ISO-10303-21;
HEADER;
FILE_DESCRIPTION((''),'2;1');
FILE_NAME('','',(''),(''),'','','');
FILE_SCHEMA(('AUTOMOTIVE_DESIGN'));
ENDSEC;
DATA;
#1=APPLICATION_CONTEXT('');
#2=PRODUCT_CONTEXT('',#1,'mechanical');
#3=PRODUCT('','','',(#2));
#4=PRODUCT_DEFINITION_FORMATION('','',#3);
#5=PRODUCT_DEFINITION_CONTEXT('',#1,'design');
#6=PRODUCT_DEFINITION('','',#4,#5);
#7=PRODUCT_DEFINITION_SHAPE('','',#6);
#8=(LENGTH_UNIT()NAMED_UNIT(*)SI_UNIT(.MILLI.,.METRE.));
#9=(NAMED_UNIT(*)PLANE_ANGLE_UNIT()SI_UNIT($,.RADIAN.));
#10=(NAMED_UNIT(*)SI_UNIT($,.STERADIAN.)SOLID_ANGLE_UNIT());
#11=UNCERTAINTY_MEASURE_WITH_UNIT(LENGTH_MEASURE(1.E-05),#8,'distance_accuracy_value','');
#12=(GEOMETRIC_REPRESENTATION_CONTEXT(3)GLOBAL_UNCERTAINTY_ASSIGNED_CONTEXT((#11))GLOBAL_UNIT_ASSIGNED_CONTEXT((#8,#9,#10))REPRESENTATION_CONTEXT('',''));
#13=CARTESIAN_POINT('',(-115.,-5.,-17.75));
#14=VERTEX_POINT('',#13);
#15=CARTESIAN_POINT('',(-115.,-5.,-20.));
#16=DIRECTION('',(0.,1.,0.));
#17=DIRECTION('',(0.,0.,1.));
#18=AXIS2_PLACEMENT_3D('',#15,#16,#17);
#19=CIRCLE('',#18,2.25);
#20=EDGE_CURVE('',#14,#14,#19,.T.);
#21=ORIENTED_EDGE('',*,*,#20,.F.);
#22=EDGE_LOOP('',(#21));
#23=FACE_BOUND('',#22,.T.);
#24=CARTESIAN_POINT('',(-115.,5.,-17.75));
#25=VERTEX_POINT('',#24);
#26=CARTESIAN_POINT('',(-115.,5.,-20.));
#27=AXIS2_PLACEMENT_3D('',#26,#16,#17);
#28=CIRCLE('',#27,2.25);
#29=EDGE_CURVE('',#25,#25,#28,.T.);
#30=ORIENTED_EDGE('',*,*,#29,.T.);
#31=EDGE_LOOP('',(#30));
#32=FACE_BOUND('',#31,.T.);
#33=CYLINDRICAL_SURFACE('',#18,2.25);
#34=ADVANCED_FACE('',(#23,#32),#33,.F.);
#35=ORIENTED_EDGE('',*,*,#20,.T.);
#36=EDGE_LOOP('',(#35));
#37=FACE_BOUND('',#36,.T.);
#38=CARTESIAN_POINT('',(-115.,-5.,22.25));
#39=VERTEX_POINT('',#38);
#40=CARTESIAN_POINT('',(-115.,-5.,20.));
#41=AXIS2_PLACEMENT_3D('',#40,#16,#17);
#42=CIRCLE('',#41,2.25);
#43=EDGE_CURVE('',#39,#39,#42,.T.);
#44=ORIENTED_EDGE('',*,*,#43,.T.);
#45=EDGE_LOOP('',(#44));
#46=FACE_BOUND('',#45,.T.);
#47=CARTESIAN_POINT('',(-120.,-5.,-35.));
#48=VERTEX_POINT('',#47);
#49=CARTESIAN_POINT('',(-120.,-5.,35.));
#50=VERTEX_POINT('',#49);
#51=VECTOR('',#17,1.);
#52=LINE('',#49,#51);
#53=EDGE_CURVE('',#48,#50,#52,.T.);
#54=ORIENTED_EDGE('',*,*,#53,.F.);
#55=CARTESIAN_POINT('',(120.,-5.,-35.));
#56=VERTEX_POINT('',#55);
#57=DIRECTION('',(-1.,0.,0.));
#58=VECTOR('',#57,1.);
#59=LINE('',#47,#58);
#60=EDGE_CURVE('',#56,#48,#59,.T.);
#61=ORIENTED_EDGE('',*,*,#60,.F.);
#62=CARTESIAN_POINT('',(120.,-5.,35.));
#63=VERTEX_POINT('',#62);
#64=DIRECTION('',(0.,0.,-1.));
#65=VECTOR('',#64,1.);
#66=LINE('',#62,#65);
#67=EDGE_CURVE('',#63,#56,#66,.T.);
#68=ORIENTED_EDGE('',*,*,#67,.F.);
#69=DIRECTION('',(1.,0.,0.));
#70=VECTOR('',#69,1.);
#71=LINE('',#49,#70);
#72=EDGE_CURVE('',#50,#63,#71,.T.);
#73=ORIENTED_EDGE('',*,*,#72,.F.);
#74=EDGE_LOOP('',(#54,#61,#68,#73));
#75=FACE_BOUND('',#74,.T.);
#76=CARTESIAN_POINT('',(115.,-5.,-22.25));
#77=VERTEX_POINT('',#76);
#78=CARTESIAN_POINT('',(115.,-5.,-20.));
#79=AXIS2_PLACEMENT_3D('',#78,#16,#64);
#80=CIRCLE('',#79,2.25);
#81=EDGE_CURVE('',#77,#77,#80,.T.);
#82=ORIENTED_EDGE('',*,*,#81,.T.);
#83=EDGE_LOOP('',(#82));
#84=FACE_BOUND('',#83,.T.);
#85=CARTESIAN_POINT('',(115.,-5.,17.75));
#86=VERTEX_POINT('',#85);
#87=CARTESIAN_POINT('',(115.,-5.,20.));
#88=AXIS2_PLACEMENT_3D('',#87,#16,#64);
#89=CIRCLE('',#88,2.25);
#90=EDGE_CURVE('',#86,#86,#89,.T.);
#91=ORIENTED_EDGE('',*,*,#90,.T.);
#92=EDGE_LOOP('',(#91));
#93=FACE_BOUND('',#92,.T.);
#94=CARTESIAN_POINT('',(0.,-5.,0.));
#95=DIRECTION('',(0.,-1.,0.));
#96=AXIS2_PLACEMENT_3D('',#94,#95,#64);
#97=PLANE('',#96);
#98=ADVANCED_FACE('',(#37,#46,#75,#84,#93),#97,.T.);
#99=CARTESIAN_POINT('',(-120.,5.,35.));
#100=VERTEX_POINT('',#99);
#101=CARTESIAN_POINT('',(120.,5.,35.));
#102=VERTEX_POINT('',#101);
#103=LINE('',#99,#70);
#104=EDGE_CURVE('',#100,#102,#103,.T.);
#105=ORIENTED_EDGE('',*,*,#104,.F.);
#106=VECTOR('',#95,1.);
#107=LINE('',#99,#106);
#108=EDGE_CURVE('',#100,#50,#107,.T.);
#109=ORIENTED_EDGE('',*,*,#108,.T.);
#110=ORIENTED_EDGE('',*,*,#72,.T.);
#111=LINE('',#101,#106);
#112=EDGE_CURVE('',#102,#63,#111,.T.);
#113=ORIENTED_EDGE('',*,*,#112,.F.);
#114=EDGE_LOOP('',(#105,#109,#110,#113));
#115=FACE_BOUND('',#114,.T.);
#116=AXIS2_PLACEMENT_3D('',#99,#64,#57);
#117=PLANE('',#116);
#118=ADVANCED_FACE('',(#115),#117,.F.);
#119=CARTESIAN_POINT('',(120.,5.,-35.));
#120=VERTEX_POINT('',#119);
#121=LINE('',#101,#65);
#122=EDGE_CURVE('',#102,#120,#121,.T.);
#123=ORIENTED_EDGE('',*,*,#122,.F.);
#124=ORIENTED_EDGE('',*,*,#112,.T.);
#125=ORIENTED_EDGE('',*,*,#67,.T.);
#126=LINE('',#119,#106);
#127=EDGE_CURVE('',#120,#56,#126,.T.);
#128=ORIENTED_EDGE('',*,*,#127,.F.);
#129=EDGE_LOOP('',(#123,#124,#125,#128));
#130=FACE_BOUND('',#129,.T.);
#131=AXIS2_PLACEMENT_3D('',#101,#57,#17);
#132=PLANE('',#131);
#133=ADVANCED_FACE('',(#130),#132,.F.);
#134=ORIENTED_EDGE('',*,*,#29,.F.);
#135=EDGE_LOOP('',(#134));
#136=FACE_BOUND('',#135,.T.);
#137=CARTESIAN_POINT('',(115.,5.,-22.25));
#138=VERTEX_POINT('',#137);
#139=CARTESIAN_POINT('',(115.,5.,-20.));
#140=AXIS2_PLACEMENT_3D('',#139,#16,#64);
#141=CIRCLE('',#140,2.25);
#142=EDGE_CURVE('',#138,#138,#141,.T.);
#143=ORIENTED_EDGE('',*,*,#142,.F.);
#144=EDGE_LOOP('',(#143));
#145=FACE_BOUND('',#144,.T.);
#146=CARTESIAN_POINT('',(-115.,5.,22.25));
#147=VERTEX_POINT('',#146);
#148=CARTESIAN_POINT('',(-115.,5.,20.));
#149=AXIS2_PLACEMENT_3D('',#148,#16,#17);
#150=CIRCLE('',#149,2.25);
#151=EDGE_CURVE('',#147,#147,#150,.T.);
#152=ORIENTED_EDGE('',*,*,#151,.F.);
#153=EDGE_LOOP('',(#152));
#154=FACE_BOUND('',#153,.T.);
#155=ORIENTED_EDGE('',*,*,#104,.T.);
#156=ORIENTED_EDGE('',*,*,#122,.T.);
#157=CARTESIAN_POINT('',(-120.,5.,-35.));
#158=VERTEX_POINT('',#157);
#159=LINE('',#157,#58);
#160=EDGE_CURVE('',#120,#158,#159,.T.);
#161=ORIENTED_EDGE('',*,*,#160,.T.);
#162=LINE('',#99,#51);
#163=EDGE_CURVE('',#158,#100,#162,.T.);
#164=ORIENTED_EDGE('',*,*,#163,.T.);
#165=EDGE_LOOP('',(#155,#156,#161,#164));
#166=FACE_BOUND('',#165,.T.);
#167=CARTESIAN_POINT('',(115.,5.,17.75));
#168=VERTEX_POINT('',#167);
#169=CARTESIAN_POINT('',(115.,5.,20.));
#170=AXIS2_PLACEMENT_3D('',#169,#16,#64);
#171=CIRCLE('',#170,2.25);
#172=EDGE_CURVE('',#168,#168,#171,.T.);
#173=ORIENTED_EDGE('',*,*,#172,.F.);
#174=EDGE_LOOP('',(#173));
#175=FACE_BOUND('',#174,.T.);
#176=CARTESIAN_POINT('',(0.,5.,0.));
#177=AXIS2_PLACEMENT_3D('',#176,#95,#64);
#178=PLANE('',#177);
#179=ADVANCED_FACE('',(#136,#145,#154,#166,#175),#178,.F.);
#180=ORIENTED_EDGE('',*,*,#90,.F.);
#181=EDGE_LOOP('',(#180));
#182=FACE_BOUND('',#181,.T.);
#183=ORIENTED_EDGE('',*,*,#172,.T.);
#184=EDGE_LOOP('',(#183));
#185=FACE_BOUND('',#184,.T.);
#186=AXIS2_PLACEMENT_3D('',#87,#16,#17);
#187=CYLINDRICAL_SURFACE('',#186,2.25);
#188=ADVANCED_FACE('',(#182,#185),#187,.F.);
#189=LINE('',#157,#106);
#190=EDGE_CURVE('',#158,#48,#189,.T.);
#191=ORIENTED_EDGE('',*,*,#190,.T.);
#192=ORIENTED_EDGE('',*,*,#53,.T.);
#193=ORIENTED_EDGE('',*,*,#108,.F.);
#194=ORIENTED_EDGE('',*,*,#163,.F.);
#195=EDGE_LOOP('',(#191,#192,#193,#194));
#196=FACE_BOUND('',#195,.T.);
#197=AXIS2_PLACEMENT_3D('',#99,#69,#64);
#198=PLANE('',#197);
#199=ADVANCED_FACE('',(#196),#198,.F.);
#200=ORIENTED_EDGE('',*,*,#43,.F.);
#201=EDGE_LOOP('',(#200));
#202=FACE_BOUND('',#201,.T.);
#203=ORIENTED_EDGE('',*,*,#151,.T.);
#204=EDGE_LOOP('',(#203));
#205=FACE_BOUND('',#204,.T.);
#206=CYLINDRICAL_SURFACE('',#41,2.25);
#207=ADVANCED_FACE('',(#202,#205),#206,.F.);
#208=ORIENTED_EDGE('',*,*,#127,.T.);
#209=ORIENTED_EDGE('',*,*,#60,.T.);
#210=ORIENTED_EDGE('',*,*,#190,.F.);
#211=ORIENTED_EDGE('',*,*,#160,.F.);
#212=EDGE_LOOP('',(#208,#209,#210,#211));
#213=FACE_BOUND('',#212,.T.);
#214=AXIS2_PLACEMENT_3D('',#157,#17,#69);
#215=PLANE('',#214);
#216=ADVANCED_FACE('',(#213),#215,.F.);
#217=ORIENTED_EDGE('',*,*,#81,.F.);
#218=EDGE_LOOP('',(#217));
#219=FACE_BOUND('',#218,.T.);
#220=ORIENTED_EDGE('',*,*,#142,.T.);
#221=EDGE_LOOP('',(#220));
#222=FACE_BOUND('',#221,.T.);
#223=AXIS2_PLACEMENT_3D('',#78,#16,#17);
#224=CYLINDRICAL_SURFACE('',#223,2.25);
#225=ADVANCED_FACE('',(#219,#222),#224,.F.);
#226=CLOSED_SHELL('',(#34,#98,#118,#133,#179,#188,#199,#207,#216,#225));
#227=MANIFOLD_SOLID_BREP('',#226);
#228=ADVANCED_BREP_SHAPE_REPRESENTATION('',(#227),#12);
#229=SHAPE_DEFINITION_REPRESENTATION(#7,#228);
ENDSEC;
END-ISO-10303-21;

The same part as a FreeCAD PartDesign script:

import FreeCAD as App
import Part
import Sketcher

doc = App.newDocument("Part")
params = doc.addObject("Spreadsheet::Sheet", "Params")
for row, (alias, value) in enumerate([
    ("sketch1_width", "240 mm"),
    ("sketch1_height", "70 mm"),
    ("pad1_length", "10 mm"),
    ("sketch2_diameter", "4.5 mm"),
], start=1):
    params.set(f"A{row}", alias)
    params.set(f"B{row}", "=" + value)
    params.setAlias(f"B{row}", alias)

body = doc.addObject("PartDesign::Body", "Body")

sketch1 = body.newObject("Sketcher::SketchObject", "Sketch")
sketch1.AttachmentSupport = (doc.getObject("XZ_Plane"), [""])
sketch1.MapMode = "FlatFace"
sketch1.addGeometry(Part.LineSegment(App.Vector(-120, -35, 0), App.Vector(-120, 35, 0)), False)
sketch1.addGeometry(Part.LineSegment(App.Vector(-120, 35, 0), App.Vector(120, 35, 0)), False)
sketch1.addGeometry(Part.LineSegment(App.Vector(120, 35, 0), App.Vector(120, -35, 0)), False)
sketch1.addGeometry(Part.LineSegment(App.Vector(120, -35, 0), App.Vector(-120, -35, 0)), False)
sketch1.addConstraint(Sketcher.Constraint("Coincident", 0, 2, 1, 1))
sketch1.addConstraint(Sketcher.Constraint("Coincident", 1, 2, 2, 1))
sketch1.addConstraint(Sketcher.Constraint("Coincident", 2, 2, 3, 1))
sketch1.addConstraint(Sketcher.Constraint("Coincident", 3, 2, 0, 1))
sketch1.addConstraint(Sketcher.Constraint("Vertical", 0))
sketch1.addConstraint(Sketcher.Constraint("Horizontal", 1))
sketch1.addConstraint(Sketcher.Constraint("Vertical", 2))
sketch1.addConstraint(Sketcher.Constraint("Horizontal", 3))
sketch1.addConstraint(Sketcher.Constraint("Symmetric", 0, 2, 2, 2, -1, 1))
sketch1.addConstraint(Sketcher.Constraint("DistanceX", 1, 1, 1, 2, 240.0))
sketch1.addConstraint(Sketcher.Constraint("DistanceY", 0, 1, 0, 2, 70.0))
sketch1.setExpression("Constraints[9]", "Params.sketch1_width")
sketch1.setExpression("Constraints[10]", "Params.sketch1_height")
pad1 = body.newObject("PartDesign::Pad", "Pad")
pad1.Profile = sketch1
pad1.setExpression("Length", "Params.pad1_length")
pad1.Midplane = True

sketch2 = body.newObject("Sketcher::SketchObject", "Sketch001")
sketch2.AttachmentSupport = (doc.getObject("XZ_Plane"), [""])
sketch2.MapMode = "FlatFace"
sketch2.AttachmentOffset = App.Placement(App.Vector(0, 0, -5), App.Rotation())
sketch2.addGeometry(Part.Circle(App.Vector(-115, -20, 0), App.Vector(0, 0, 1), 2.2), False)
sketch2.addGeometry(Part.Circle(App.Vector(-115, 20, 0), App.Vector(0, 0, 1), 2.2), False)
sketch2.addGeometry(Part.Circle(App.Vector(115, 20, 0), App.Vector(0, 0, 1), 2.2), False)
sketch2.addGeometry(Part.Circle(App.Vector(115, -20, 0), App.Vector(0, 0, 1), 2.2), False)
sketch2.addConstraint(Sketcher.Constraint("Equal", 0, 1))
sketch2.addConstraint(Sketcher.Constraint("Equal", 1, 2))
sketch2.addConstraint(Sketcher.Constraint("Equal", 2, 3))
sketch2.addConstraint(Sketcher.Constraint("Symmetric", 0, 3, 2, 3, -1, 1))
sketch2.addConstraint(Sketcher.Constraint("Symmetric", 1, 3, 3, 3, -1, 1))
sketch2.addConstraint(Sketcher.Constraint("Symmetric", 1, 3, 2, 3, -2))
sketch2.addConstraint(Sketcher.Constraint("Diameter", 0, 4.5))
sketch2.addConstraint(Sketcher.Constraint("DistanceX", 0, 3, -1, 1, 115.0))
sketch2.addConstraint(Sketcher.Constraint("DistanceY", 0, 3, -1, 1, 20.0))
sketch2.setExpression("Constraints[6]", "Params.sketch2_diameter")
pocket1 = body.newObject("PartDesign::Pocket", "Pocket")
pocket1.Profile = sketch2
pocket1.Type = "ThroughAll"
pocket1.Reversed = True

doc.recompute()
